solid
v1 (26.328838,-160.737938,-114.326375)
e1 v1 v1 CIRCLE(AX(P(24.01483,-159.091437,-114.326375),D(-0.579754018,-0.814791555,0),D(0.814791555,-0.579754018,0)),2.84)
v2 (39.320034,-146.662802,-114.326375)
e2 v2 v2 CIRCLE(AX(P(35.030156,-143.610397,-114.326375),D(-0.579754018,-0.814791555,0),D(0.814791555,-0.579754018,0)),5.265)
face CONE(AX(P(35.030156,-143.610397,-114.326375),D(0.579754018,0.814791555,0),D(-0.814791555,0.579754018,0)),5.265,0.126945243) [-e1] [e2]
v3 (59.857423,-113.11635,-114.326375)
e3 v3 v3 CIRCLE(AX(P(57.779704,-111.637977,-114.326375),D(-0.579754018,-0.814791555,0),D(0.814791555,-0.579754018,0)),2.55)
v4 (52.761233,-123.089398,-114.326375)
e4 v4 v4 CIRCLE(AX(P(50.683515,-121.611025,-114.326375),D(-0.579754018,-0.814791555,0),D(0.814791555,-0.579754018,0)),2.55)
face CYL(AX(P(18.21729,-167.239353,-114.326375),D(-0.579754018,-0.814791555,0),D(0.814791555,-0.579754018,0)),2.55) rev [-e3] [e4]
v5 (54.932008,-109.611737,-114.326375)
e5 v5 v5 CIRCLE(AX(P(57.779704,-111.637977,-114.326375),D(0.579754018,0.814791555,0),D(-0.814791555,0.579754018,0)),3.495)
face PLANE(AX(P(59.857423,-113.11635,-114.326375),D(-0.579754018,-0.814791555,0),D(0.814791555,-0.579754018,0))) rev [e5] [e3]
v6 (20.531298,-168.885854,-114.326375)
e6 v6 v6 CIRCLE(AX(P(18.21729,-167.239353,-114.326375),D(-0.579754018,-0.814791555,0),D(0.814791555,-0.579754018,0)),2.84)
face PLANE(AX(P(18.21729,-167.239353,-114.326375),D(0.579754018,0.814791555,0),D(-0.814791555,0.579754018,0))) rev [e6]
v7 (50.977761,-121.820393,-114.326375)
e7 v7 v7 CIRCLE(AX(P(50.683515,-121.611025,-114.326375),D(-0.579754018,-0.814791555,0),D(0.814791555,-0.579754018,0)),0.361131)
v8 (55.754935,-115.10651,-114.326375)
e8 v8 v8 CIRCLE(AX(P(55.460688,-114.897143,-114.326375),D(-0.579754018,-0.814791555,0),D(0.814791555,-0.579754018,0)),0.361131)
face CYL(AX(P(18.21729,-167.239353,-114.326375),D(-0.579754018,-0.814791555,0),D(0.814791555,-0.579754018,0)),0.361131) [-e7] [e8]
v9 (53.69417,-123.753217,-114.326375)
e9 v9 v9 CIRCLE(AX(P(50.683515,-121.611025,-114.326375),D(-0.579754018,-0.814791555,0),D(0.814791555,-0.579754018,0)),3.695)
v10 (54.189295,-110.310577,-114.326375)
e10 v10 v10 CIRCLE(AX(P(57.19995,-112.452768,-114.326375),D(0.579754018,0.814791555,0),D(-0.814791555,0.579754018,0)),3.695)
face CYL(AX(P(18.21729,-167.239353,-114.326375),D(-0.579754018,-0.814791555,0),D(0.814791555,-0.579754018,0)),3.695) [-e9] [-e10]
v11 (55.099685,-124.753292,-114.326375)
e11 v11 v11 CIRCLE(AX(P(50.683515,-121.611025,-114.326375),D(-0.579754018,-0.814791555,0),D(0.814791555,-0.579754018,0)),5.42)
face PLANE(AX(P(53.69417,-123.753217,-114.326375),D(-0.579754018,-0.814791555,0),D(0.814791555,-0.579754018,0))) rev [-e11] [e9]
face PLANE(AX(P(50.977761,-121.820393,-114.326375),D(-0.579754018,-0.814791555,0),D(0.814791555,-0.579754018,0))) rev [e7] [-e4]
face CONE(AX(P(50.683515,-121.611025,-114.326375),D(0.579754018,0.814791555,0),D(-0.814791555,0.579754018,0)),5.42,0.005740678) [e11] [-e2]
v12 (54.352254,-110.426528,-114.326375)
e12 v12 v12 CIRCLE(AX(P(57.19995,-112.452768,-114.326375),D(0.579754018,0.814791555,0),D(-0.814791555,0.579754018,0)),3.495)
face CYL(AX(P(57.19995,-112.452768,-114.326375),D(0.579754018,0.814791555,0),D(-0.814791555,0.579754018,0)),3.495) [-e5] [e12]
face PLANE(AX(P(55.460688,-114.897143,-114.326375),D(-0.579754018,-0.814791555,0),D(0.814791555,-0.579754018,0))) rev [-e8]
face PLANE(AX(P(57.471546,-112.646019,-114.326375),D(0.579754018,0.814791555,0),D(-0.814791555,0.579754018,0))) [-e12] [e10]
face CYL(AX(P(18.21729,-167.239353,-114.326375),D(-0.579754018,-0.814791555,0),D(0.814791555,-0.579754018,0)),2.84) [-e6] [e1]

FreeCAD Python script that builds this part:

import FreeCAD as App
import Part
import Sketcher

V = App.Vector
Q = App.Units.Quantity


def add_polygon(sketch, points):
    """Adds a closed chain of lines whose ends are joined by coincident constraints."""
    first, n = sketch.GeometryCount, len(points)
    for a, b in zip(points, points[1:] + points[:1]):
        sketch.addGeometry(Part.LineSegment(App.Vector(*a, 0), App.Vector(*b, 0)), False)
    for i in range(n):
        sketch.addConstraint(Sketcher.Constraint("Coincident", first + i, 2, first + (i + 1) % n, 1))

doc = App.newDocument("Part")
params = doc.addObject("Spreadsheet::Sheet", "Params")
for row, (alias, value) in enumerate([
    ("sketch1_length", "10 mm"),
    ("sketch1_length2", "64.24 mm"),
    ("sketch1_length3", "8.24 mm"),
    ("sketch1_length4", "12.24 mm"),
    ("sketch1_length5", "2.84 mm"),
    ("revolution_angle", "360 deg"),
    ("sketch2_diameter", "6.99 mm"),
    ("pocket1_length", "1 mm"),
], start=1):
    params.set(f"A{row}", alias)
    params.set(f"B{row}", "=" + value)
    params.setAlias(f"B{row}", alias)

body = doc.addObject("PartDesign::Body", "Body")

sketch1 = body.newObject("Sketcher::SketchObject", "Sketch")
sketch1.AttachmentSupport = (doc.getObject("XY_Plane"), [""])
sketch1.MapMode = "FlatFace"
sketch1.AttachmentOffset = App.Placement(V(0, 0, -114.326375), App.Rotation())
add_polygon(sketch1, [(18.22, -167.24), (55.46, -114.9), (55.75, -115.11), (50.98, -121.82), (52.76, -123.09), (59.86, -113.12), (60.79, -113.78), (53.69, -123.75), (55.1, -124.75), (39.32, -146.66), (26.33, -160.74), (20.53, -168.89)])
sketch1.addGeometry(Part.LineSegment(V(18.22, -167.24, 0), V(57.78, -111.64, 0)), True)
sketch1.addConstraint(Sketcher.Constraint("Coincident", 12, 1, 11, 2))
sketch1.addConstraint(Sketcher.Constraint("Perpendicular", 0, 1))
sketch1.addConstraint(Sketcher.Constraint("Perpendicular", 1, 2))
sketch1.addConstraint(Sketcher.Constraint("Perpendicular", 2, 3))
sketch1.addConstraint(Sketcher.Constraint("Perpendicular", 3, 4))
sketch1.addConstraint(Sketcher.Constraint("Perpendicular", 4, 5))
sketch1.addConstraint(Sketcher.Constraint("Perpendicular", 5, 6))
sketch1.addConstraint(Sketcher.Constraint("Perpendicular", 6, 7))
sketch1.addConstraint(Sketcher.Constraint("Perpendicular", 7, 10))
sketch1.addConstraint(Sketcher.Constraint("Perpendicular", 10, 11))
sketch1.addConstraint(Sketcher.Constraint("Perpendicular", 11, 12))
sketch1.addConstraint(Sketcher.Constraint("Equal", 4, 6))
sketch1.addConstraint(Sketcher.Constraint("Distance", 10, Q("10 mm")))
sketch1.addConstraint(Sketcher.Constraint("Distance", 0, Q("64.24 mm")))
sketch1.addConstraint(Sketcher.Constraint("Distance", 2, Q("8.24 mm")))
sketch1.addConstraint(Sketcher.Constraint("Distance", 4, Q("12.24 mm")))
sketch1.addConstraint(Sketcher.Constraint("Distance", 11, Q("2.84 mm")))
sketch1.addConstraint(Sketcher.Constraint("Distance", 12, Q("68.24 mm")))
sketch1.addConstraint(Sketcher.Constraint("Distance", 5, Q("1.145 mm")))
sketch1.addConstraint(Sketcher.Constraint("Distance", 7, Q("1.725 mm")))
sketch1.addConstraint(Sketcher.Constraint("DistanceY", 3, 2, -1, 1, Q("123.089398 mm")))
sketch1.addConstraint(Sketcher.Constraint("DistanceX", 3, 2, 1, 2, Q("2.993701 mm")))
sketch1.addConstraint(Sketcher.Constraint("DistanceY", 7, 2, 2, 2, Q("2.9329 mm")))
sketch1.addConstraint(Sketcher.Constraint("DistanceX", 8, 2, 3, 2, Q("13.441199 mm")))
sketch1.addConstraint(Sketcher.Constraint("Distance", 1, Q("0.361131 mm")))
sketch1.addConstraint(Sketcher.Constraint("Distance", 9, Q("19.154128 mm")))
sketch1.addConstraint(Sketcher.Constraint("DistanceX", -1, 1, 0, 2, Q("55.460688 mm")))
sketch1.setExpression("Constraints[24]", "Params.sketch1_length")
sketch1.setExpression("Constraints[25]", "Params.sketch1_length2")
sketch1.setExpression("Constraints[26]", "Params.sketch1_length3")
sketch1.setExpression("Constraints[27]", "Params.sketch1_length4")
sketch1.setExpression("Constraints[28]", "Params.sketch1_length5")
revolution = body.newObject("PartDesign::Revolution", "Revolution")
revolution.Profile = sketch1
revolution.ReferenceAxis = (sketch1, ["Axis0"])
revolution.setExpression("Angle", "Params.revolution_angle")

sketch2 = body.newObject("Sketcher::SketchObject", "Sketch001")
sketch2.Placement = App.Placement(V(-33.314791, -46.820909, 0), App.Rotation(V(0.663885278, -0.472378678, -0.579754018), V(-0.472378678, 0.336114721, -0.814791555), V(0.579754018, 0.814791555, 0), "ZXY"))
add_polygon(sketch2, [(116.9, 61.8), (116.9, -5.3), (198.1, -5.3), (198.1, 61.8)])
sketch2.addGeometry(Part.Circle(V(157.4, 28.3, 0), V(0, 0, 1), 3.5), False)
sketch2.addConstraint(Sketcher.Constraint("Vertical", 0))
sketch2.addConstraint(Sketcher.Constraint("Horizontal", 1))
sketch2.addConstraint(Sketcher.Constraint("Vertical", 2))
sketch2.addConstraint(Sketcher.Constraint("Horizontal", 3))
sketch2.addConstraint(Sketcher.Constraint("Diameter", 4, Q("6.99 mm")))
sketch2.addConstraint(Sketcher.Constraint("DistanceX", 1, 1, 1, 2, Q("81.185 mm")))
sketch2.addConstraint(Sketcher.Constraint("DistanceY", 0, 2, 0, 1, Q("67.044 mm")))
sketch2.addConstraint(Sketcher.Constraint("DistanceX", -1, 1, 0, 2, Q("116.897 mm")))
sketch2.addConstraint(Sketcher.Constraint("DistanceY", 0, 2, -1, 1, Q("5.268 mm")))
sketch2.addConstraint(Sketcher.Constraint("DistanceX", -1, 1, 4, 3, Q("157.37567 mm")))
sketch2.addConstraint(Sketcher.Constraint("DistanceY", -1, 1, 4, 3, Q("28.335097 mm")))
sketch2.setExpression("Constraints[8]", "Params.sketch2_diameter")
pocket1 = body.newObject("PartDesign::Pocket", "Pocket")
pocket1.Profile = sketch2
pocket1.setExpression("Length", "Params.pocket1_length")

doc.recompute()
